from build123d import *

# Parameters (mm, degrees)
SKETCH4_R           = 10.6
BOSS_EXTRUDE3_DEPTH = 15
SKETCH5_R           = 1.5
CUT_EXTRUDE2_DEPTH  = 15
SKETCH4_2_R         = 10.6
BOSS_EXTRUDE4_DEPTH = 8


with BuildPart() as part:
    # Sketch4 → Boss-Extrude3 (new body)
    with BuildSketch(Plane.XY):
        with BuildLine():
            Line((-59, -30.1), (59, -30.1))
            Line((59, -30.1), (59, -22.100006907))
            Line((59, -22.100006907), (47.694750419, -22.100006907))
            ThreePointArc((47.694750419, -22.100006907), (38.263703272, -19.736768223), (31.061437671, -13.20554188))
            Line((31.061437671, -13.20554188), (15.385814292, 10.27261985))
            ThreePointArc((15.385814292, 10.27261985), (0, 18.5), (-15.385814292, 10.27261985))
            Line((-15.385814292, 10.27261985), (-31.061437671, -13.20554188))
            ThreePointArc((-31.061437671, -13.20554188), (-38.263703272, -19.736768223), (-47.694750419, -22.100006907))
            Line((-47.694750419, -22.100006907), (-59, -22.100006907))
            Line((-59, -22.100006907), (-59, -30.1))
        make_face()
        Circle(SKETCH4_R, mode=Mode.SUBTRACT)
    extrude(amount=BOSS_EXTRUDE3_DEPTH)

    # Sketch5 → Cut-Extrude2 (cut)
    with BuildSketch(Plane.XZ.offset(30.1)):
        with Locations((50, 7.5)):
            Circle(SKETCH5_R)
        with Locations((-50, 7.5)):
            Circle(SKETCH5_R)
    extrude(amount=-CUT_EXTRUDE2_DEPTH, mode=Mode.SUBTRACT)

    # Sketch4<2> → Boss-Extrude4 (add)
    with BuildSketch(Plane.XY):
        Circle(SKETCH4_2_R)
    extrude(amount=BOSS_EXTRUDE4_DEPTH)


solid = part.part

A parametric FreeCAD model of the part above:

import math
import FreeCAD as App
import Part
import Sketcher

doc = App.newDocument("Part")
body = doc.addObject("PartDesign::Body", "Body")

sketch1 = doc.addObject("Sketcher::SketchObject", "Sketch")
body.addObject(sketch1)
sketch1.AttachmentSupport = (doc.XY_Plane, [""])
sketch1.MapMode = "FlatFace"
sketch1.addGeometry([
    Part.LineSegment(App.Vector(-59, -30, 0), App.Vector(59, -30, 0)),
    Part.LineSegment(App.Vector(59, -30, 0), App.Vector(59, -22, 0)),
    Part.LineSegment(App.Vector(59, -22, 0), App.Vector(48, -22, 0)),
    Part.ArcOfCircle(Part.Circle(App.Vector(48, -2, 0), App.Vector(0, 0, 1), 20), math.radians(-146), math.radians(-90)),
    Part.LineSegment(App.Vector(31, -13, 0), App.Vector(15, 10, 0)),
    Part.ArcOfCircle(Part.Circle(App.Vector(0, 0, 0), App.Vector(0, 0, 1), 19), math.radians(34), math.radians(146)),
    Part.LineSegment(App.Vector(-15, 10, 0), App.Vector(-31, -13, 0)),
    Part.ArcOfCircle(Part.Circle(App.Vector(-48, -2, 0), App.Vector(0, 0, 1), 20), math.radians(-90), math.radians(-34)),
    Part.LineSegment(App.Vector(-48, -22, 0), App.Vector(-59, -22, 0)),
    Part.LineSegment(App.Vector(-59, -22, 0), App.Vector(-59, -30, 0)),
    Part.Circle(App.Vector(0, 0, 0), App.Vector(0, 0, 1), 11),
], False)
sketch1.addConstraint([
    Sketcher.Constraint("Coincident", 0, 2, 1, 1),
    Sketcher.Constraint("Coincident", 1, 2, 2, 1),
    Sketcher.Constraint("Tangent", 2, 2, 3, 2),
    Sketcher.Constraint("Tangent", 3, 1, 4, 1),
    Sketcher.Constraint("Tangent", 4, 2, 5, 1),
    Sketcher.Constraint("Tangent", 5, 2, 6, 1),
    Sketcher.Constraint("Tangent", 6, 2, 7, 2),
    Sketcher.Constraint("Tangent", 7, 1, 8, 1),
    Sketcher.Constraint("Coincident", 8, 2, 9, 1),
    Sketcher.Constraint("Coincident", 9, 2, 0, 1),
    Sketcher.Constraint("Horizontal", 0),
    Sketcher.Constraint("Vertical", 1),
    Sketcher.Constraint("Horizontal", 2),
    Sketcher.Constraint("Horizontal", 8),
    Sketcher.Constraint("Vertical", 9),
    Sketcher.Constraint("Coincident", 5, 3, -1, 1),
    Sketcher.Constraint("Coincident", 10, 3, -1, 1),
    Sketcher.Constraint("Equal", 3, 7),
    Sketcher.Constraint("Symmetric", 3, 3, 7, 3, -2),
    Sketcher.Constraint("Equal", 2, 8),
    Sketcher.Constraint("Radius", 3, 20.0),
    Sketcher.Constraint("Diameter", 10, 21.2),
    Sketcher.Constraint("Radius", 5, 18.5),
    Sketcher.Constraint("DistanceX", 0, 1, 0, 2, 118.0),
    Sketcher.Constraint("DistanceY", 0, 2, -1, 1, 30.1),
    Sketcher.Constraint("DistanceX", 2, 2, 2, 1, 11.30525),
    Sketcher.Constraint("Distance", 4, 28.23029),
])
pad1 = doc.addObject("PartDesign::Pad", "Pad")
body.addObject(pad1)
pad1.Profile = sketch1
pad1.Length = 15

sketch2 = doc.addObject("Sketcher::SketchObject", "Sketch001")
body.addObject(sketch2)
sketch2.AttachmentSupport = (doc.XZ_Plane, [""])
sketch2.MapMode = "FlatFace"
sketch2.AttachmentOffset = App.Placement(App.Vector(0, 0, 30.1), App.Rotation())
sketch2.addGeometry([
    Part.Circle(App.Vector(50, 7.5, 0), App.Vector(0, 0, 1), 1.5),
    Part.Circle(App.Vector(-50, 7.5, 0), App.Vector(0, 0, 1), 1.5),
], False)
sketch2.addConstraint([
    Sketcher.Constraint("Equal", 0, 1),
    Sketcher.Constraint("Symmetric", 0, 3, 1, 3, -2),
    Sketcher.Constraint("Diameter", 0, 3.0),
    Sketcher.Constraint("DistanceX", -1, 1, 0, 3, 50.0),
    Sketcher.Constraint("DistanceY", -1, 1, 0, 3, 7.5),
])
pocket1 = doc.addObject("PartDesign::Pocket", "Pocket")
body.addObject(pocket1)
pocket1.Profile = sketch2
pocket1.Length = 15

sketch3 = doc.addObject("Sketcher::SketchObject", "Sketch002")
body.addObject(sketch3)
sketch3.AttachmentSupport = (doc.XY_Plane, [""])
sketch3.MapMode = "FlatFace"
sketch3.addGeometry(Part.Circle(App.Vector(0, 0, 0), App.Vector(0, 0, 1), 11), False)
sketch3.addConstraint([
    Sketcher.Constraint("Coincident", 0, 3, -1, 1),
    Sketcher.Constraint("Diameter", 0, 21.2),
])
pad2 = doc.addObject("PartDesign::Pad", "Pad001")
body.addObject(pad2)
pad2.Profile = sketch3
pad2.Length = 8

doc.recompute()
